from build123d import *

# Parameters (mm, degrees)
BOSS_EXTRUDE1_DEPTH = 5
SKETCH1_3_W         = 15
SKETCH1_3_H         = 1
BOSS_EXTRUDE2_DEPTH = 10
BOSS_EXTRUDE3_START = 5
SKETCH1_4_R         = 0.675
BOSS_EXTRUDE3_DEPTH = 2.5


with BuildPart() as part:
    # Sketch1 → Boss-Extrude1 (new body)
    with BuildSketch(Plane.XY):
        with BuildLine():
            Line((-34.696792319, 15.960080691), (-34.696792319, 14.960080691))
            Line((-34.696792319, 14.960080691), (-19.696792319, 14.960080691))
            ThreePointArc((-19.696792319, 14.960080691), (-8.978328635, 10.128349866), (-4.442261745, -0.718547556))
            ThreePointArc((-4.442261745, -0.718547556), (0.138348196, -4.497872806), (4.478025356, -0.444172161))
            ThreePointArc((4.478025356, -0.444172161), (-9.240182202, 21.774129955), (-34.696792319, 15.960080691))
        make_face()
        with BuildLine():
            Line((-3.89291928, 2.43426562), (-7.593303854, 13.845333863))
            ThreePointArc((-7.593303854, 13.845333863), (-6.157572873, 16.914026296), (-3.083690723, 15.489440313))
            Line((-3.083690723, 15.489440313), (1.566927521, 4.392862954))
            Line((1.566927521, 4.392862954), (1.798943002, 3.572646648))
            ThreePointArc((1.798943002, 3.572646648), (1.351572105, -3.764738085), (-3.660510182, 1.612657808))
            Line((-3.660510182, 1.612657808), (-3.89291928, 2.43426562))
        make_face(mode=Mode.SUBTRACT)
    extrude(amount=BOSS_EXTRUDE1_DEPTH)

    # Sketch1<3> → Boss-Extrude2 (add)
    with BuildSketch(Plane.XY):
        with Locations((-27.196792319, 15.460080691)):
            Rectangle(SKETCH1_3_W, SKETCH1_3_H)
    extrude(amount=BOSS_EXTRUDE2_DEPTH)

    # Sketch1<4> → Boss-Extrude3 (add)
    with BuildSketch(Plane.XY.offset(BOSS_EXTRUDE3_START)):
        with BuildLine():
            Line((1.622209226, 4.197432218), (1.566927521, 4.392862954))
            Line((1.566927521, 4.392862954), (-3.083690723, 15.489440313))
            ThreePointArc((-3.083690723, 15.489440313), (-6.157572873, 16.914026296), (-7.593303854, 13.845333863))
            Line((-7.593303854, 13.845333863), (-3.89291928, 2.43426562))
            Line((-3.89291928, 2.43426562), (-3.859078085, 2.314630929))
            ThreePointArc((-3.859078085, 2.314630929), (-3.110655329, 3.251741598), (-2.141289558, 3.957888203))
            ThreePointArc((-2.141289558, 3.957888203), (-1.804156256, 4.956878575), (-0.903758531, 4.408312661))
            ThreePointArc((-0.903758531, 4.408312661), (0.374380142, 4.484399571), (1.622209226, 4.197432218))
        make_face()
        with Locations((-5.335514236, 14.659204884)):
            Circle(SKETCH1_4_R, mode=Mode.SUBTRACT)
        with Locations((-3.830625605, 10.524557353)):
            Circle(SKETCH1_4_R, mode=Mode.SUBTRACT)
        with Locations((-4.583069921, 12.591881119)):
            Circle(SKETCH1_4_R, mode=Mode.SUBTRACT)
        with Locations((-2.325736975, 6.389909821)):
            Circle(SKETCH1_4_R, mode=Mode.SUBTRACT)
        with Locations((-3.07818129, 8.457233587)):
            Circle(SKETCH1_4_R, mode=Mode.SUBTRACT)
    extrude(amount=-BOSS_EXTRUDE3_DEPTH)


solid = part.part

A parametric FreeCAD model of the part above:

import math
import FreeCAD as App
import Part
import Sketcher


def add_polygon(sketch, points):
    """Adds a closed chain of lines whose ends are joined by coincident constraints."""
    first, n = sketch.GeometryCount, len(points)
    for a, b in zip(points, points[1:] + points[:1]):
        sketch.addGeometry(Part.LineSegment(App.Vector(*a, 0), App.Vector(*b, 0)), False)
    for i in range(n):
        sketch.addConstraint(Sketcher.Constraint("Coincident", first + i, 2, first + (i + 1) % n, 1))

doc = App.newDocument("Part")
params = doc.addObject("Spreadsheet::Sheet", "Params")
for row, (alias, value) in enumerate([
    ("sketch1_radius", "4 mm"),
    ("sketch1_radius2", "4.5 mm"),
    ("sketch1_radius3", "2.4 mm"),
    ("sketch1_width", "15 mm"),
    ("sketch1_height", "1 mm"),
    ("pad1_length", "5 mm"),
    ("sketch2_width", "15 mm"),
    ("sketch2_height", "1 mm"),
    ("pad2_length", "10 mm"),
    ("sketch3_radius", "2.4 mm"),
    ("sketch3_radius2", "4.5 mm"),
    ("sketch3_diameter", "1.35 mm"),
    ("pad3_length", "2.5 mm"),
], start=1):
    params.set(f"A{row}", alias)
    params.set(f"B{row}", "=" + value)
    params.setAlias(f"B{row}", alias)

body = doc.addObject("PartDesign::Body", "Body")

# Sketch on XY plane
sketch1 = doc.addObject("Sketcher::SketchObject", "Sketch")
body.addObject(sketch1)
sketch1.AttachmentSupport = (doc.XY_Plane, [""])
sketch1.MapMode = "FlatFace"
sketch1.addGeometry(Part.LineSegment(App.Vector(-34.696792, 15.960081, 0), App.Vector(-34.696792, 14.960081, 0)), False)
sketch1.addGeometry(Part.LineSegment(App.Vector(-34.696792, 14.960081, 0), App.Vector(-19.696792, 14.960081, 0)), False)
sketch1.addGeometry(Part.ArcOfCircle(Part.Circle(App.Vector(-20.464223, -1.046857, 0), App.Vector(0, 0, 1), 16.025324), math.radians(1.173897), math.radians(87.255136)), False)
sketch1.addGeometry(Part.ArcOfCircle(Part.Circle(App.Vector(0, 0, 0), App.Vector(0, 0, 1), 4.5), math.radians(-170.811838), math.radians(-5.664599)), False)
sketch1.addGeometry(Part.ArcOfCircle(Part.Circle(App.Vector(-17.905961, 1.079478, 0), App.Vector(0, 0, 1), 22.435783), math.radians(-3.894045), math.radians(138.451551)), False)
sketch1.addGeometry(Part.LineSegment(App.Vector(-3.66051, 1.612658, 0), App.Vector(-3.892919, 2.434266, 0)), False)
sketch1.addGeometry(Part.LineSegment(App.Vector(-3.892919, 2.434266, 0), App.Vector(-7.593304, 13.845334, 0)), False)
sketch1.addGeometry(Part.ArcOfCircle(Part.Circle(App.Vector(-5.335514, 14.659205, 0), App.Vector(0, 0, 1), 2.4), math.radians(20.238664), math.radians(199.822838)), False)
sketch1.addGeometry(Part.LineSegment(App.Vector(-3.083691, 15.48944, 0), App.Vector(1.566928, 4.392863, 0)), False)
sketch1.addGeometry(Part.LineSegment(App.Vector(1.566928, 4.392863, 0), App.Vector(1.798943, 3.572647, 0)), False)
sketch1.addGeometry(Part.ArcOfCircle(Part.Circle(App.Vector(0, 0, 0), App.Vector(0, 0, 1), 4), math.radians(156.223847), math.radians(423.273269)), False)
sketch1.addConstraint(Sketcher.Constraint("Coincident", 0, 2, 1, 1))
sketch1.addConstraint(Sketcher.Constraint("Coincident", 1, 2, 2, 2))
sketch1.addConstraint(Sketcher.Constraint("Coincident", 2, 1, 3, 1))
sketch1.addConstraint(Sketcher.Constraint("Coincident", 3, 2, 4, 1))
sketch1.addConstraint(Sketcher.Constraint("Coincident", 4, 2, 0, 1))
sketch1.addConstraint(Sketcher.Constraint("Coincident", 5, 2, 6, 1))
sketch1.addConstraint(Sketcher.Constraint("Coincident", 6, 2, 7, 2))
sketch1.addConstraint(Sketcher.Constraint("Coincident", 7, 1, 8, 1))
sketch1.addConstraint(Sketcher.Constraint("Coincident", 8, 2, 9, 1))
sketch1.addConstraint(Sketcher.Constraint("Coincident", 9, 2, 10, 2))
sketch1.addConstraint(Sketcher.Constraint("Coincident", 10, 1, 5, 1))
sketch1.addConstraint(Sketcher.Constraint("Vertical", 0))
sketch1.addConstraint(Sketcher.Constraint("Horizontal", 1))
sketch1.addConstraint(Sketcher.Constraint("Coincident", 3, 3, -1, 1))
sketch1.addConstraint(Sketcher.Constraint("Coincident", 10, 3, -1, 1))
sketch1.addConstraint(Sketcher.Constraint("Parallel", 5, 9))
sketch1.addConstraint(Sketcher.Constraint("Radius", 10, 4.0))
sketch1.addConstraint(Sketcher.Constraint("Radius", 3, 4.5))
sketch1.addConstraint(Sketcher.Constraint("Radius", 7, 2.4))
sketch1.addConstraint(Sketcher.Constraint("DistanceX", 1, 1, 1, 2, 15.0))
sketch1.addConstraint(Sketcher.Constraint("DistanceY", 0, 2, 0, 1, 1.0))
sketch1.addConstraint(Sketcher.Constraint("Radius", 2, 16.025324))
sketch1.addConstraint(Sketcher.Constraint("Radius", 4, 22.435783))
sketch1.addConstraint(Sketcher.Constraint("Distance", 9, 0.8524))
sketch1.addConstraint(Sketcher.Constraint("DistanceX", 4, 3, 2, 1, 13.463699))
sketch1.addConstraint(Sketcher.Constraint("Distance", 8, 12.03172))
sketch1.addConstraint(Sketcher.Constraint("DistanceX", 4, 3, -1, 1, 17.905961))
sketch1.addConstraint(Sketcher.Constraint("DistanceY", -1, 1, 0, 2, 14.960081))
sketch1.addConstraint(Sketcher.Constraint("DistanceX", 5, 2, -1, 1, 3.892919))
sketch1.addConstraint(Sketcher.Constraint("DistanceX", 7, 1, -1, 1, 3.083691))
sketch1.addConstraint(Sketcher.Constraint("DistanceY", -1, 1, 7, 1, 15.48944))
sketch1.addConstraint(Sketcher.Constraint("DistanceX", 10, 1, -1, 1, 3.66051))
sketch1.addConstraint(Sketcher.Constraint("DistanceX", 2, 3, 7, 3, 15.128708))
sketch1.addConstraint(Sketcher.Constraint("DistanceX", 0, 2, 2, 3, 14.23257))
sketch1.addConstraint(Sketcher.Constraint("DistanceY", 5, 2, 7, 3, 12.224939))
sketch1.addConstraint(Sketcher.Constraint("DistanceX", 6, 2, 7, 3, 2.25779))
sketch1.setExpression("Constraints[16]", "Params.sketch1_radius")
sketch1.setExpression("Constraints[17]", "Params.sketch1_radius2")
sketch1.setExpression("Constraints[18]", "Params.sketch1_radius3")
sketch1.setExpression("Constraints[19]", "Params.sketch1_width")
sketch1.setExpression("Constraints[20]", "Params.sketch1_height")
pad1 = doc.addObject("PartDesign::Pad", "Pad")
body.addObject(pad1)
pad1.Profile = sketch1
pad1.setExpression("Length", "Params.pad1_length")

# Sketch on XY plane
sketch2 = doc.addObject("Sketcher::SketchObject", "Sketch001")
body.addObject(sketch2)
sketch2.AttachmentSupport = (doc.XY_Plane, [""])
sketch2.MapMode = "FlatFace"
add_polygon(sketch2, [(-34.696792, 15.960081), (-34.696792, 14.960081), (-19.696792, 14.960081), (-19.696792, 15.960081)])  # lines 0-3
sketch2.addConstraint(Sketcher.Constraint("Vertical", 0))
sketch2.addConstraint(Sketcher.Constraint("Horizontal", 1))
sketch2.addConstraint(Sketcher.Constraint("Vertical", 2))
sketch2.addConstraint(Sketcher.Constraint("Horizontal", 3))
sketch2.addConstraint(Sketcher.Constraint("DistanceX", 1, 1, 1, 2, 15.0))
sketch2.addConstraint(Sketcher.Constraint("DistanceY", 0, 2, 0, 1, 1.0))
sketch2.addConstraint(Sketcher.Constraint("DistanceY", -1, 1, 0, 2, 14.960081))
sketch2.addConstraint(Sketcher.Constraint("DistanceX", 0, 2, -1, 1, 34.696792))
sketch2.setExpression("Constraints[8]", "Params.sketch2_width")
sketch2.setExpression("Constraints[9]", "Params.sketch2_height")
pad2 = doc.addObject("PartDesign::Pad", "Pad001")
body.addObject(pad2)
pad2.Profile = sketch2
pad2.setExpression("Length", "Params.pad2_length")

# Sketch on XY plane
sketch3 = doc.addObject("Sketcher::SketchObject", "Sketch002")
body.addObject(sketch3)
sketch3.AttachmentSupport = (doc.XY_Plane, [""])
sketch3.MapMode = "FlatFace"
sketch3.AttachmentOffset = App.Placement(App.Vector(0, 0, 5), App.Rotation())
sketch3.addGeometry(Part.LineSegment(App.Vector(1.622209, 4.197432, 0), App.Vector(1.566928, 4.392863, 0)), False)
sketch3.addGeometry(Part.LineSegment(App.Vector(1.566928, 4.392863, 0), App.Vector(-3.083691, 15.48944, 0)), False)
sketch3.addGeometry(Part.ArcOfCircle(Part.Circle(App.Vector(-5.335514, 14.659205, 0), App.Vector(0, 0, 1), 2.4), math.radians(20.238664), math.radians(199.822838)), False)
sketch3.addGeometry(Part.LineSegment(App.Vector(-7.593304, 13.845334, 0), App.Vector(-3.892919, 2.434266, 0)), False)
sketch3.addGeometry(Part.LineSegment(App.Vector(-3.892919, 2.434266, 0), App.Vector(-3.859078, 2.314631, 0)), False)
sketch3.addGeometry(Part.ArcOfCircle(Part.Circle(App.Vector(0, 0, 0), App.Vector(0, 0, 1), 4.5), math.radians(118.414195), math.radians(149.045152)), False)
sketch3.addGeometry(Part.ArcOfCircle(Part.Circle(App.Vector(-1.573293, 4.322586, 0), App.Vector(0, 0, 1), 0.675), math.radians(7.296405), math.radians(212.703595)), False)
sketch3.addGeometry(Part.ArcOfCircle(Part.Circle(App.Vector(0, 0, 0), App.Vector(0, 0, 1), 4.5), math.radians(68.869651), math.radians(101.585805)), False)
sketch3.addGeometry(Part.Circle(App.Vector(-2.325737, 6.38991, 0), App.Vector(0, 0, 1), 0.675), False)
sketch3.addGeometry(Part.Circle(App.Vector(-3.078181, 8.457234, 0), App.Vector(0, 0, 1), 0.675), False)
sketch3.addGeometry(Part.Circle(App.Vector(-4.58307, 12.591881, 0), App.Vector(0, 0, 1), 0.675), False)
sketch3.addGeometry(Part.Circle(App.Vector(-5.335514, 14.659205, 0), App.Vector(0, 0, 1), 0.675), False)
sketch3.addGeometry(Part.Circle(App.Vector(-3.830626, 10.524557, 0), App.Vector(0, 0, 1), 0.675), False)
sketch3.addConstraint(Sketcher.Constraint("Coincident", 0, 2, 1, 1))
sketch3.addConstraint(Sketcher.Constraint("Coincident", 1, 2, 2, 1))
sketch3.addConstraint(Sketcher.Constraint("Coincident", 2, 2, 3, 1))
sketch3.addConstraint(Sketcher.Constraint("Coincident", 3, 2, 4, 1))
sketch3.addConstraint(Sketcher.Constraint("Coincident", 4, 2, 5, 2))
sketch3.addConstraint(Sketcher.Constraint("Coincident", 5, 1, 6, 2))
sketch3.addConstraint(Sketcher.Constraint("Coincident", 6, 1, 7, 2))
sketch3.addConstraint(Sketcher.Constraint("Coincident", 7, 1, 0, 1))
sketch3.addConstraint(Sketcher.Constraint("Coincident", 5, 3, -1, 1))
sketch3.addConstraint(Sketcher.Constraint("Coincident", 7, 3, -1, 1))
sketch3.addConstraint(Sketcher.Constraint("Coincident", 11, 3, 2, 3))
sketch3.addConstraint(Sketcher.Constraint("Equal", 5, 7))
sketch3.addConstraint(Sketcher.Constraint("Equal", 6, 8))
sketch3.addConstraint(Sketcher.Constraint("Equal", 8, 9))
sketch3.addConstraint(Sketcher.Constraint("Equal", 9, 10))
sketch3.addConstraint(Sketcher.Constraint("Equal", 10, 11))
sketch3.addConstraint(Sketcher.Constraint("Equal", 11, 12))
sketch3.addConstraint(Sketcher.Constraint("Parallel", 0, 4))
sketch3.addConstraint(Sketcher.Constraint("Radius", 2, 2.4))
sketch3.addConstraint(Sketcher.Constraint("Radius", 5, 4.5))
sketch3.addConstraint(Sketcher.Constraint("Diameter", 8, 1.35))
sketch3.addConstraint(Sketcher.Constraint("Distance", 0, 0.203099))
sketch3.addConstraint(Sketcher.Constraint("DistanceX", 6, 3, 7, 1, 3.195502))
sketch3.addConstraint(Sketcher.Constraint("DistanceX", 5, 1, 7, 1, 3.763499))
sketch3.addConstraint(Sketcher.Constraint("Distance", 1, 12.03172))
sketch3.addConstraint(Sketcher.Constraint("Distance", 4, 0.124329))
sketch3.addConstraint(Sketcher.Constraint("DistanceY", -1, 1, 8, 3, 6.38991))
sketch3.addConstraint(Sketcher.Constraint("DistanceX", 9, 3, -1, 1, 3.078181))
sketch3.addConstraint(Sketcher.Constraint("DistanceX", 10, 3, -1, 1, 4.58307))
sketch3.addConstraint(Sketcher.Constraint("DistanceY", -1, 1, 10, 3, 12.591881))
sketch3.addConstraint(Sketcher.Constraint("DistanceX", 1, 2, -1, 1, 3.083691))
sketch3.addConstraint(Sketcher.Constraint("DistanceY", -1, 1, 1, 2, 15.48944))
sketch3.addConstraint(Sketcher.Constraint("DistanceX", 3, 2, -1, 1, 3.892919))
sketch3.addConstraint(Sketcher.Constraint("DistanceX", 4, 2, -1, 1, 3.859078))
sketch3.addConstraint(Sketcher.Constraint("DistanceX", 2, 3, 6, 3, 3.762222))
sketch3.addConstraint(Sketcher.Constraint("DistanceY", 9, 3, 2, 3, 6.201971))
sketch3.addConstraint(Sketcher.Constraint("DistanceX", 11, 3, 12, 3, 1.504889))
sketch3.addConstraint(Sketcher.Constraint("DistanceX", 12, 3, 8, 3, 1.504889))
sketch3.addConstraint(Sketcher.Constraint("DistanceX", 2, 2, 11, 3, 2.25779))
sketch3.addConstraint(Sketcher.Constraint("DistanceY", -1, 1, 12, 3, 10.524557))
sketch3.setExpression("Constraints[18]", "Params.sketch3_radius")
sketch3.setExpression("Constraints[19]", "Params.sketch3_radius2")
sketch3.setExpression("Constraints[20]", "Params.sketch3_diameter")
pad3 = doc.addObject("PartDesign::Pad", "Pad002")
body.addObject(pad3)
pad3.Profile = sketch3
pad3.setExpression("Length", "Params.pad3_length")
pad3.Reversed = True

doc.recompute()
